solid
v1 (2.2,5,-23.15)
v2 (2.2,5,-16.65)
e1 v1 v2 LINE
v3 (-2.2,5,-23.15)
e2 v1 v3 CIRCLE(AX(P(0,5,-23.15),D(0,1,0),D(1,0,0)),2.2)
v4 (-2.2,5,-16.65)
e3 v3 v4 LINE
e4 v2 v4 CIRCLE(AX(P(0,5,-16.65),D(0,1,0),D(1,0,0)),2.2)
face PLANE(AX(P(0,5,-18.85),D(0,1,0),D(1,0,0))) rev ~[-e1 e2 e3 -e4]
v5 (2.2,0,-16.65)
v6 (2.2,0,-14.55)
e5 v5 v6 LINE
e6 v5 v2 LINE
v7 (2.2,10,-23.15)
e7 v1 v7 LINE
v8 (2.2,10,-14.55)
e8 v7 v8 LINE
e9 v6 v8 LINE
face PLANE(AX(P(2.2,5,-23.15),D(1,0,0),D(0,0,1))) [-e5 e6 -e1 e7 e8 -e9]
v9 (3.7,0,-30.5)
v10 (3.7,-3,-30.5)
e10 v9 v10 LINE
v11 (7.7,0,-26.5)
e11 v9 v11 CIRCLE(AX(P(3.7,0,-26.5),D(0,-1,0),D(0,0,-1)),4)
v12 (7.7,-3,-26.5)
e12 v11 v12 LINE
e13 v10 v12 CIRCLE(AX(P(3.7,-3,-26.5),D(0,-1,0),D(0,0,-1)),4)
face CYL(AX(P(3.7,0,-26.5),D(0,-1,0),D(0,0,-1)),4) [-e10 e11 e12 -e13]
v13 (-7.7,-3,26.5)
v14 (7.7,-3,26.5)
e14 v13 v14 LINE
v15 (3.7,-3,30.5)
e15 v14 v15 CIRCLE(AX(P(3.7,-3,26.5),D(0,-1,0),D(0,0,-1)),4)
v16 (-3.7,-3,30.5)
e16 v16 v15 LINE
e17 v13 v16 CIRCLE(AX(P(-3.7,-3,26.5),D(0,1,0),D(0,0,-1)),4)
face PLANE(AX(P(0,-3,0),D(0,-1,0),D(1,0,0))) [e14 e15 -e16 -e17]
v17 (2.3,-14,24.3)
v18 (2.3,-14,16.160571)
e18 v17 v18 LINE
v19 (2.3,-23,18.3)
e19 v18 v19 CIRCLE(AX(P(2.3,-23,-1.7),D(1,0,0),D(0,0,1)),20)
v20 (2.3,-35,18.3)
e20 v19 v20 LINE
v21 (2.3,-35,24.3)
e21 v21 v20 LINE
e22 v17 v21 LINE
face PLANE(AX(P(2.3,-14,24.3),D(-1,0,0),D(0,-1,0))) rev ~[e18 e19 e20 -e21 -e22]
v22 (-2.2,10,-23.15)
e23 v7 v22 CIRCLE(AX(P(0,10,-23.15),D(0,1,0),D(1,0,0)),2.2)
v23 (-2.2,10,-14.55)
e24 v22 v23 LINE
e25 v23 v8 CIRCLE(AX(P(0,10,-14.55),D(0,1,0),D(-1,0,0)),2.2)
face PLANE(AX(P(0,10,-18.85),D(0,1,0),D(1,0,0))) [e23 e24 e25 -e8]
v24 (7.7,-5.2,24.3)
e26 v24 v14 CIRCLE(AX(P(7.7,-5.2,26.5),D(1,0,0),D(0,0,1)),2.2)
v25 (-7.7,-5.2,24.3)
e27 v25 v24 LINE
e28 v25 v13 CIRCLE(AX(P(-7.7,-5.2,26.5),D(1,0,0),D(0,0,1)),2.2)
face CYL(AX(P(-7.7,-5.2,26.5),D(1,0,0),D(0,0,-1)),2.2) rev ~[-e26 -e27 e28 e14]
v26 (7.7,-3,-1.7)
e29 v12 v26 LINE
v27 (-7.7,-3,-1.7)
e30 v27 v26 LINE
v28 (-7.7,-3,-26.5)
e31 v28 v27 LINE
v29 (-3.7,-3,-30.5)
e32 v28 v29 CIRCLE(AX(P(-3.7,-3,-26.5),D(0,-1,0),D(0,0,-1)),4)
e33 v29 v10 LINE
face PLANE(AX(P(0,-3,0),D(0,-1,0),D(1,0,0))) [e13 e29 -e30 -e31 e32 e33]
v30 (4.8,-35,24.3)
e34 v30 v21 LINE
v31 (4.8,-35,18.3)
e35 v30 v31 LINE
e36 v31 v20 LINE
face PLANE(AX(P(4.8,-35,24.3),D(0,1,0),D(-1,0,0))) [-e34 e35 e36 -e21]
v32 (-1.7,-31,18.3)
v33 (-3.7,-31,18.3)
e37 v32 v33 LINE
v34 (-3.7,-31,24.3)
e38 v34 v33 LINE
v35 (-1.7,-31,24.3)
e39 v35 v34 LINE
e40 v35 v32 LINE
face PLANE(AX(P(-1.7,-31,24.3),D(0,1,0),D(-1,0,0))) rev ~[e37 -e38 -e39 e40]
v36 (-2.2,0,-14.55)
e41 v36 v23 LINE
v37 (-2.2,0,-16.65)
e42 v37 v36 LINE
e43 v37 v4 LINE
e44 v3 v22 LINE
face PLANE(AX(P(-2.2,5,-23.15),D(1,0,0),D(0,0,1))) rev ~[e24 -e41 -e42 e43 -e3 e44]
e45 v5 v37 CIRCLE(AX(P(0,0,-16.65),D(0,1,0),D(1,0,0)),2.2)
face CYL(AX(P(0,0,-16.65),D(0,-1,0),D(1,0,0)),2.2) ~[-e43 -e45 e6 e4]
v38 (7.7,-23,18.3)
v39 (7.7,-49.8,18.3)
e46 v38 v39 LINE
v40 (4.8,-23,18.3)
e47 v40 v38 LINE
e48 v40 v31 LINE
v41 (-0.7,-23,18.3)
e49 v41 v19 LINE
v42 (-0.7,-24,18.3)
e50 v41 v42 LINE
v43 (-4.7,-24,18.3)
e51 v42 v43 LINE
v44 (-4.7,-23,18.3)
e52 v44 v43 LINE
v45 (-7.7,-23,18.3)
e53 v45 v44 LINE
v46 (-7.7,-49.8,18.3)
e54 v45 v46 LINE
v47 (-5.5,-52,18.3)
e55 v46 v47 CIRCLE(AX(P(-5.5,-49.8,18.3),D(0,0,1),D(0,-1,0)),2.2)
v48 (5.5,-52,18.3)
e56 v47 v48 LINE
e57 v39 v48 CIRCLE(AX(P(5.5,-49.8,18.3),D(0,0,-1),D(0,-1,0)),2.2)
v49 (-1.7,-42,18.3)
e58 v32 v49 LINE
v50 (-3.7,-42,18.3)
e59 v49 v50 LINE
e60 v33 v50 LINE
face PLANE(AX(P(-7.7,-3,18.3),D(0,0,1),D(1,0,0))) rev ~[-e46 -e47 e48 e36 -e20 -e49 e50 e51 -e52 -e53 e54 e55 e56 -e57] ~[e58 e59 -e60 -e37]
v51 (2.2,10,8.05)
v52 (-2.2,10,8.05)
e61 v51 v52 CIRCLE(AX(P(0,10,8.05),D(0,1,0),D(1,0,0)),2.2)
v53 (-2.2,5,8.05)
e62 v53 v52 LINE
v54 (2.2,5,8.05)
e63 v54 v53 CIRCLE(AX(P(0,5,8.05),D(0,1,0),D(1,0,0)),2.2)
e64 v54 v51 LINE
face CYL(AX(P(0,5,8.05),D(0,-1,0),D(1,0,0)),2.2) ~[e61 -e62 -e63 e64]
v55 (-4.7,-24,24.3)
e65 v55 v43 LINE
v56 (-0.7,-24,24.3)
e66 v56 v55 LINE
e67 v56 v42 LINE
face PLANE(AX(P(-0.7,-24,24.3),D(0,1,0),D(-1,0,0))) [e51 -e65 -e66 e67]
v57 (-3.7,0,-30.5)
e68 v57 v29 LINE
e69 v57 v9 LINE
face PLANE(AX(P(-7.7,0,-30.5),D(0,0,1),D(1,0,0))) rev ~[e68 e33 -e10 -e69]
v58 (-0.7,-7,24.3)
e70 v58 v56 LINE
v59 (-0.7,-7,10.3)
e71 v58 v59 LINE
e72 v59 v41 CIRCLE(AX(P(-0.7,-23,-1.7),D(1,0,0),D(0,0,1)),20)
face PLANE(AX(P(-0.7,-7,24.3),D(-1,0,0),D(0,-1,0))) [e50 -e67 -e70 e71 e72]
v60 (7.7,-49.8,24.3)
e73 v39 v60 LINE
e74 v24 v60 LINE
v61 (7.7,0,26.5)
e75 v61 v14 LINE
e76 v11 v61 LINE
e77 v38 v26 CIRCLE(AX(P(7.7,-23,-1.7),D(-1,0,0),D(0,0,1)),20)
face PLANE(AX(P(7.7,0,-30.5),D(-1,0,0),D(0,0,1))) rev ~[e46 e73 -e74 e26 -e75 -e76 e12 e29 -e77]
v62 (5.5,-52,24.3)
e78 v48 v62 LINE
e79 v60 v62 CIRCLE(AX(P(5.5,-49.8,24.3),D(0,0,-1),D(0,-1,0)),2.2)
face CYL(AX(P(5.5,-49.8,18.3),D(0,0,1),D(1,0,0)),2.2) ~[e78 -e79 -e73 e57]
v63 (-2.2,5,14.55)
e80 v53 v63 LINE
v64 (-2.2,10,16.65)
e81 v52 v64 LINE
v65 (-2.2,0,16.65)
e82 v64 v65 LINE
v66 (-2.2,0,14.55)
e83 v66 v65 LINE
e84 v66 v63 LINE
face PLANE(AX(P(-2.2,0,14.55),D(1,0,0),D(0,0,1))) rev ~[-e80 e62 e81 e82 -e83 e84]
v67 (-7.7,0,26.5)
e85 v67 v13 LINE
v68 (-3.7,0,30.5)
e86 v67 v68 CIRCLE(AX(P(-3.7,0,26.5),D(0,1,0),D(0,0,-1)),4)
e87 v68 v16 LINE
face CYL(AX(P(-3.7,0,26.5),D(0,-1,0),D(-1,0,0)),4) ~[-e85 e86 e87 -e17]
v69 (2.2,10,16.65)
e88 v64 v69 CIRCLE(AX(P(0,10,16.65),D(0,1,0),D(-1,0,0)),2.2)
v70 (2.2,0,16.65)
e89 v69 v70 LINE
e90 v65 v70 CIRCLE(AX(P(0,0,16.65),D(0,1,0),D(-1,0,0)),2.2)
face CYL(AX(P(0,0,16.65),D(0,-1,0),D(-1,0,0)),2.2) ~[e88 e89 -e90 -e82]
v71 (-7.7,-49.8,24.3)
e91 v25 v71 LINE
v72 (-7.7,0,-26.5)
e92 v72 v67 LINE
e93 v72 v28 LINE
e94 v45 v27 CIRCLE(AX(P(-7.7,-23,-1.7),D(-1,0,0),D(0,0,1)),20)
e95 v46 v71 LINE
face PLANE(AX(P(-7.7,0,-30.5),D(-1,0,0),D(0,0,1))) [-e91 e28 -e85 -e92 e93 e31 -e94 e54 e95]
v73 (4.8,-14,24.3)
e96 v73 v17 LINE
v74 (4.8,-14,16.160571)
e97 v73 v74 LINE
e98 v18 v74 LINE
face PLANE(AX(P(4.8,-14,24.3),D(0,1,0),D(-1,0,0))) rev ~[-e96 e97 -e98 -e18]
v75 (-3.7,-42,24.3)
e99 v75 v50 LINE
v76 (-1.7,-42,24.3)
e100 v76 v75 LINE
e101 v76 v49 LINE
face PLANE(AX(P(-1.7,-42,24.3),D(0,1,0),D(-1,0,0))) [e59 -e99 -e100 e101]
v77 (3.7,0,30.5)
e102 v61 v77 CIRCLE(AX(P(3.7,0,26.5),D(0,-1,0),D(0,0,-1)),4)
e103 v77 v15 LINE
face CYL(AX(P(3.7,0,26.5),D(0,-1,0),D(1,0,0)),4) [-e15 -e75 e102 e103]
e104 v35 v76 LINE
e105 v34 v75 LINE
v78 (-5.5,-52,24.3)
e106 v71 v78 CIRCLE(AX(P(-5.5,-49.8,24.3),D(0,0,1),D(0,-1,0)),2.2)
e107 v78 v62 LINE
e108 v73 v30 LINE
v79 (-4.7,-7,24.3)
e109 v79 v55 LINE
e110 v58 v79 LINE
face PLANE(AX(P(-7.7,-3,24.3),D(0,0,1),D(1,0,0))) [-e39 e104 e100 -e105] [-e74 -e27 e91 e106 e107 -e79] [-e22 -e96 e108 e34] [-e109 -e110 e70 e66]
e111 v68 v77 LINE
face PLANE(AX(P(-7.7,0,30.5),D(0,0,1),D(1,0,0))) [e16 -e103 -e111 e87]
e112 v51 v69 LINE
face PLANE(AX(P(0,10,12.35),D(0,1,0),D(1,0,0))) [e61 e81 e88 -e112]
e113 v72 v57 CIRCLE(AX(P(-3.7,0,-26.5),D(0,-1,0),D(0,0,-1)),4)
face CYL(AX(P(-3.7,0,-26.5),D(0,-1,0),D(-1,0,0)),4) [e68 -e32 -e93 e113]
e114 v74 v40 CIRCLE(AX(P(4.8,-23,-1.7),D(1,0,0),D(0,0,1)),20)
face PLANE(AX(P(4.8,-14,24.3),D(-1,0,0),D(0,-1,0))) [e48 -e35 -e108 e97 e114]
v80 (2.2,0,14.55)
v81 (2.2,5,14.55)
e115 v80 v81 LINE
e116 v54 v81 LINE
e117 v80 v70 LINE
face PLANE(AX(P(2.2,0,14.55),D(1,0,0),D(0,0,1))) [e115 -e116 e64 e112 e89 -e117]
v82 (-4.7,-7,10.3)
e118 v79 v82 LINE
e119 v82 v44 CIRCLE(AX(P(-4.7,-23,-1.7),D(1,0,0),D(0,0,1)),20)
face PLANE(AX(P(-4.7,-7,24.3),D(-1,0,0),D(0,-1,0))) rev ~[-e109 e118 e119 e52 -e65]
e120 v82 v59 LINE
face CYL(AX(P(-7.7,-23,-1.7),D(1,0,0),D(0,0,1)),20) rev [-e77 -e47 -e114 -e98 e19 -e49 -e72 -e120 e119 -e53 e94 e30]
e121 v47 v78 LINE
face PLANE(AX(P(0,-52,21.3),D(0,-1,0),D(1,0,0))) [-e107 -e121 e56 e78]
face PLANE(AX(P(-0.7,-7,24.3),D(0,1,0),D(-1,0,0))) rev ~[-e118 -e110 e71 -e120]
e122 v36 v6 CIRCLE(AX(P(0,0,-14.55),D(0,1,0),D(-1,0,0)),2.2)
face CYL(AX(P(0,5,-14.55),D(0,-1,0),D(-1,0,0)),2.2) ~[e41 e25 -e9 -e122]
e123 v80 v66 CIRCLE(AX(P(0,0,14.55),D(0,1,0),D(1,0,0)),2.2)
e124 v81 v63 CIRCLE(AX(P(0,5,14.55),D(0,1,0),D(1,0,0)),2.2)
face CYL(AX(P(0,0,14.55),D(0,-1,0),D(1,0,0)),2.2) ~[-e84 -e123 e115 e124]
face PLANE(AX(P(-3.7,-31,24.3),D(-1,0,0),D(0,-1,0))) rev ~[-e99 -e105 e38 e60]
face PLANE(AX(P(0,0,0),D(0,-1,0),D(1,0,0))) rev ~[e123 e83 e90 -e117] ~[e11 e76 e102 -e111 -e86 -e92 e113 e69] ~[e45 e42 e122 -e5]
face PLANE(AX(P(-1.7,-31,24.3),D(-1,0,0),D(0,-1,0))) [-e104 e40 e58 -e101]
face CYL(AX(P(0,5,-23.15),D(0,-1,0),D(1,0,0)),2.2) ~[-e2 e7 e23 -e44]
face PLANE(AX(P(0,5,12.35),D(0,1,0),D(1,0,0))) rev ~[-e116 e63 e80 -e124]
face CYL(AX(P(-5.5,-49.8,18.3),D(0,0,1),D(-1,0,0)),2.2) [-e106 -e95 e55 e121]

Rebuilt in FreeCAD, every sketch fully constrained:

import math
import FreeCAD as App
import Part
import Sketcher
from FreeCAD import Vector
Q = App.Units.Quantity


def edges_at(feature, points):
    """Names of the edges that pass closest to the given points."""
    edges = feature.Shape.Edges
    near = lambda p: min(range(len(edges)), key=lambda i: edges[i].distToShape(Part.Vertex(*p))[0])
    return sorted({f"Edge{near(p) + 1}" for p in points})

doc = App.newDocument("Part")
body = doc.addObject("PartDesign::Body", "Body")

sketch1 = body.newObject("Sketcher::SketchObject", "Sketch")
sketch1.AttachmentSupport = (doc.getObject("XZ_Plane"), [""])
sketch1.MapMode = "FlatFace"
sketch1.addGeometry([
    Part.LineSegment(Vector(-8, 30, 0), Vector(-8, -30, 0)),
    Part.LineSegment(Vector(-8, -30, 0), Vector(8, -30, 0)),
    Part.LineSegment(Vector(8, -30, 0), Vector(8, 30, 0)),
    Part.LineSegment(Vector(8, 30, 0), Vector(-8, 30, 0)),
], False)
sketch1.addConstraint([
    Sketcher.Constraint("Coincident", 0, 2, 1, 1),
    Sketcher.Constraint("Coincident", 1, 2, 2, 1),
    Sketcher.Constraint("Coincident", 2, 2, 3, 1),
    Sketcher.Constraint("Coincident", 3, 2, 0, 1),
    Sketcher.Constraint("Vertical", 0),
    Sketcher.Constraint("Horizontal", 1),
    Sketcher.Constraint("Vertical", 2),
    Sketcher.Constraint("Horizontal", 3),
    Sketcher.Constraint("Symmetric", 0, 2, 2, 2, -1, 1),
    Sketcher.Constraint("DistanceY", 0, 2, 0, 1, Q("61 mm")),
    Sketcher.Constraint("DistanceX", 1, 1, 1, 2, Q("15.4 mm")),
])
pad1 = body.newObject("PartDesign::Pad", "Pad")
pad1.Profile = sketch1
pad1.Length = 3
doc.recompute()

fillet = body.newObject("PartDesign::Fillet", "Fillet")
fillet.Base = (pad1, edges_at(pad1, [
    (7.7, -1.5, 30.5),
    (-7.7, -1.5, 30.5),
    (7.7, -1.5, -30.5),
    (-7.7, -1.5, -30.5),
]))
fillet.Radius = 4

sketch2 = body.newObject("Sketcher::SketchObject", "Sketch001")
sketch2.AttachmentSupport = (doc.getObject("XZ_Plane"), [""])
sketch2.MapMode = "FlatFace"
sketch2.addGeometry([
    Part.LineSegment(Vector(-2.2, -16.6, 0), Vector(-2.2, -14.6, 0)),
    Part.ArcOfCircle(Part.Circle(Vector(0, -14.6, 0), Vector(0, 0, 1), 2.2), math.radians(0), math.radians(180)),
    Part.LineSegment(Vector(2.2, -14.6, 0), Vector(2.2, -16.6, 0)),
    Part.ArcOfCircle(Part.Circle(Vector(0, -16.6, 0), Vector(0, 0, 1), 2.2), math.radians(180), math.radians(360)),
    Part.LineSegment(Vector(-2.2, 14.6, 0), Vector(-2.2, 16.6, 0)),
    Part.ArcOfCircle(Part.Circle(Vector(0, 16.6, 0), Vector(0, 0, 1), 2.2), math.radians(0), math.radians(180)),
    Part.LineSegment(Vector(2.2, 16.6, 0), Vector(2.2, 14.6, 0)),
    Part.ArcOfCircle(Part.Circle(Vector(0, 14.6, 0), Vector(0, 0, 1), 2.2), math.radians(180), math.radians(360)),
], False)
sketch2.addConstraint([
    Sketcher.Constraint("Tangent", 0, 2, 1, 2),
    Sketcher.Constraint("Tangent", 1, 1, 2, 1),
    Sketcher.Constraint("Tangent", 2, 2, 3, 2),
    Sketcher.Constraint("Tangent", 3, 1, 0, 1),
    Sketcher.Constraint("Tangent", 4, 2, 5, 2),
    Sketcher.Constraint("Tangent", 5, 1, 6, 1),
    Sketcher.Constraint("Tangent", 6, 2, 7, 2),
    Sketcher.Constraint("Tangent", 7, 1, 4, 1),
    Sketcher.Constraint("Vertical", 0),
    Sketcher.Constraint("Vertical", 2),
    Sketcher.Constraint("Vertical", 4),
    Sketcher.Constraint("Vertical", 6),
    Sketcher.Constraint("Equal", 3, 5),
    Sketcher.Constraint("Symmetric", 3, 3, 5, 3, -1, 1),
    Sketcher.Constraint("Symmetric", 1, 3, 7, 3, -1),
    Sketcher.Constraint("Radius", 1, Q("2.2 mm")),
    Sketcher.Constraint("DistanceY", 0, 1, 0, 2, Q("2.1 mm")),
    Sketcher.Constraint("DistanceY", 1, 3, 5, 3, Q("31.2 mm")),
])
pad2 = body.newObject("PartDesign::Pad", "Pad001")
pad2.Profile = sketch2
pad2.Length = 5
pad2.Reversed = True

sketch3 = body.newObject("Sketcher::SketchObject", "Sketch002")
sketch3.AttachmentSupport = (doc.getObject("XZ_Plane"), [""])
sketch3.MapMode = "FlatFace"
sketch3.AttachmentOffset = App.Placement(Vector(0, 0, -5), App.Rotation())
sketch3.addGeometry([
    Part.LineSegment(Vector(-2.2, -23.1, 0), Vector(-2.2, -14.6, 0)),
    Part.ArcOfCircle(Part.Circle(Vector(0, -14.6, 0), Vector(0, 0, 1), 2.2), math.radians(0), math.radians(180)),
    Part.LineSegment(Vector(2.2, -14.6, 0), Vector(2.2, -23.1, 0)),
    Part.ArcOfCircle(Part.Circle(Vector(0, -23.1, 0), Vector(0, 0, 1), 2.2), math.radians(180), math.radians(360)),
    Part.LineSegment(Vector(-2.2, 8.1, 0), Vector(-2.2, 16.6, 0)),
    Part.ArcOfCircle(Part.Circle(Vector(0, 16.6, 0), Vector(0, 0, 1), 2.2), math.radians(0), math.radians(180)),
    Part.LineSegment(Vector(2.2, 16.6, 0), Vector(2.2, 8.1, 0)),
    Part.ArcOfCircle(Part.Circle(Vector(0, 8.1, 0), Vector(0, 0, 1), 2.2), math.radians(180), math.radians(360)),
], False)
sketch3.addConstraint([
    Sketcher.Constraint("Tangent", 0, 2, 1, 2),
    Sketcher.Constraint("Tangent", 1, 1, 2, 1),
    Sketcher.Constraint("Tangent", 2, 2, 3, 2),
    Sketcher.Constraint("Tangent", 3, 1, 0, 1),
    Sketcher.Constraint("Tangent", 4, 2, 5, 2),
    Sketcher.Constraint("Tangent", 5, 1, 6, 1),
    Sketcher.Constraint("Tangent", 6, 2, 7, 2),
    Sketcher.Constraint("Tangent", 7, 1, 4, 1),
    Sketcher.Constraint("Vertical", 0),
    Sketcher.Constraint("Vertical", 2),
    Sketcher.Constraint("Vertical", 4),
    Sketcher.Constraint("Vertical", 6),
    Sketcher.Constraint("Equal", 3, 5),
    Sketcher.Constraint("PointOnObject", 1, 3, -2),
    Sketcher.Constraint("PointOnObject", 5, 3, -2),
    Sketcher.Constraint("Equal", 2, 4),
    Sketcher.Constraint("Radius", 1, Q("2.2 mm")),
    Sketcher.Constraint("DistanceY", 0, 1, 0, 2, Q("8.6 mm")),
    Sketcher.Constraint("DistanceY", 1, 3, 5, 3, Q("31.2 mm")),
    Sketcher.Constraint("DistanceY", 1, 3, -1, 1, Q("14.55 mm")),
])
pad3 = body.newObject("PartDesign::Pad", "Pad002")
pad3.Profile = sketch3
pad3.Length = 5
pad3.Reversed = True

sketch4 = body.newObject("Sketcher::SketchObject", "Sketch003")
sketch4.AttachmentSupport = (doc.getObject("XZ_Plane"), [""])
sketch4.MapMode = "FlatFace"
sketch4.AttachmentOffset = App.Placement(Vector(0, 0, 3), App.Rotation())
sketch4.addGeometry([
    Part.LineSegment(Vector(-8, 24, 0), Vector(-8, 18, 0)),
    Part.LineSegment(Vector(-8, 18, 0), Vector(8, 18, 0)),
    Part.LineSegment(Vector(8, 18, 0), Vector(8, 24, 0)),
    Part.LineSegment(Vector(8, 24, 0), Vector(-8, 24, 0)),
], False)
sketch4.addConstraint([
    Sketcher.Constraint("Coincident", 0, 2, 1, 1),
    Sketcher.Constraint("Coincident", 1, 2, 2, 1),
    Sketcher.Constraint("Coincident", 2, 2, 3, 1),
    Sketcher.Constraint("Coincident", 3, 2, 0, 1),
    Sketcher.Constraint("Vertical", 0),
    Sketcher.Constraint("Horizontal", 1),
    Sketcher.Constraint("Vertical", 2),
    Sketcher.Constraint("Horizontal", 3),
    Sketcher.Constraint("DistanceY", 0, 2, 0, 1, Q("6 mm")),
    Sketcher.Constraint("DistanceX", 1, 1, 1, 2, Q("15.4 mm")),
    Sketcher.Constraint("DistanceX", 0, 2, -1, 1, Q("7.7 mm")),
    Sketcher.Constraint("DistanceY", -1, 1, 0, 2, Q("18.3 mm")),
])
pad4 = body.newObject("PartDesign::Pad", "Pad003")
pad4.Profile = sketch4
pad4.Length = 49
doc.recompute()

fillet2 = body.newObject("PartDesign::Fillet", "Fillet001")
fillet2.Base = (pad4, edges_at(pad4, [(7.7, -52, 21.3), (-7.7, -52, 21.3)]))
fillet2.Radius = 2.2
doc.recompute()

fillet3 = body.newObject("PartDesign::Fillet", "Fillet002")
fillet3.Base = (fillet2, edges_at(fillet2, [(0, -3, 18.3)]))
fillet3.Radius = 20
doc.recompute()

fillet4 = body.newObject("PartDesign::Fillet", "Fillet003")
fillet4.Base = (fillet3, edges_at(fillet3, [(0, -3, 24.3)]))
fillet4.Radius = 2.2

sketch5 = body.newObject("Sketcher::SketchObject", "Sketch004")
sketch5.AttachmentSupport = (doc.getObject("XY_Plane"), [""])
sketch5.MapMode = "FlatFace"
sketch5.AttachmentOffset = App.Placement(Vector(0, 0, 24.3), App.Rotation())
sketch5.addGeometry([
    Part.LineSegment(Vector(-0.7, -24, 0), Vector(-0.7, -7, 0)),
    Part.LineSegment(Vector(-0.7, -7, 0), Vector(-4.7, -7, 0)),
    Part.LineSegment(Vector(-4.7, -7, 0), Vector(-4.7, -24, 0)),
    Part.LineSegment(Vector(-4.7, -24, 0), Vector(-0.7, -24, 0)),
    Part.LineSegment(Vector(-1.7, -42, 0), Vector(-1.7, -31, 0)),
    Part.LineSegment(Vector(-1.7, -31, 0), Vector(-3.7, -31, 0)),
    Part.LineSegment(Vector(-3.7, -31, 0), Vector(-3.7, -42, 0)),
    Part.LineSegment(Vector(-3.7, -42, 0), Vector(-1.7, -42, 0)),
    Part.LineSegment(Vector(4.8, -35, 0), Vector(4.8, -14, 0)),
    Part.LineSegment(Vector(4.8, -14, 0), Vector(2.3, -14, 0)),
    Part.LineSegment(Vector(2.3, -14, 0), Vector(2.3, -35, 0)),
    Part.LineSegment(Vector(2.3, -35, 0), Vector(4.8, -35, 0)),
], False)
sketch5.addConstraint([
    Sketcher.Constraint("Coincident", 0, 2, 1, 1),
    Sketcher.Constraint("Coincident", 1, 2, 2, 1),
    Sketcher.Constraint("Coincident", 2, 2, 3, 1),
    Sketcher.Constraint("Coincident", 3, 2, 0, 1),
    Sketcher.Constraint("Coincident", 4, 2, 5, 1),
    Sketcher.Constraint("Coincident", 5, 2, 6, 1),
    Sketcher.Constraint("Coincident", 6, 2, 7, 1),
    Sketcher.Constraint("Coincident", 7, 2, 4, 1),
    Sketcher.Constraint("Coincident", 8, 2, 9, 1),
    Sketcher.Constraint("Coincident", 9, 2, 10, 1),
    Sketcher.Constraint("Coincident", 10, 2, 11, 1),
    Sketcher.Constraint("Coincident", 11, 2, 8, 1),
    Sketcher.Constraint("Vertical", 0),
    Sketcher.Constraint("Horizontal", 1),
    Sketcher.Constraint("Vertical", 2),
    Sketcher.Constraint("Horizontal", 3),
    Sketcher.Constraint("Vertical", 4),
    Sketcher.Constraint("Horizontal", 5),
    Sketcher.Constraint("Vertical", 6),
    Sketcher.Constraint("Horizontal", 7),
    Sketcher.Constraint("Vertical", 8),
    Sketcher.Constraint("Horizontal", 9),
    Sketcher.Constraint("Vertical", 10),
    Sketcher.Constraint("Horizontal", 11),
    Sketcher.Constraint("DistanceX", 1, 2, 1, 1, Q("4 mm")),
    Sketcher.Constraint("DistanceX", 5, 2, 5, 1, Q("2 mm")),
    Sketcher.Constraint("DistanceY", 0, 1, 0, 2, Q("17 mm")),
    Sketcher.Constraint("DistanceY", 4, 1, 4, 2, Q("11 mm")),
    Sketcher.Constraint("DistanceY", 8, 1, 8, 2, Q("21 mm")),
    Sketcher.Constraint("DistanceX", 9, 2, 9, 1, Q("2.5 mm")),
    Sketcher.Constraint("DistanceY", 0, 2, -1, 1, Q("7 mm")),
    Sketcher.Constraint("DistanceY", 4, 2, -1, 1, Q("31 mm")),
    Sketcher.Constraint("DistanceY", 8, 2, -1, 1, Q("14 mm")),
    Sketcher.Constraint("DistanceX", 4, 2, 3, 2, Q("1 mm")),
    Sketcher.Constraint("DistanceX", 0, 2, 9, 2, Q("3 mm")),
    Sketcher.Constraint("DistanceX", 0, 2, -1, 1, Q("0.7 mm")),
])
pocket1 = body.newObject("PartDesign::Pocket", "Pocket")
pocket1.Profile = sketch5
pocket1.Type = "ThroughAll"

doc.recompute()
